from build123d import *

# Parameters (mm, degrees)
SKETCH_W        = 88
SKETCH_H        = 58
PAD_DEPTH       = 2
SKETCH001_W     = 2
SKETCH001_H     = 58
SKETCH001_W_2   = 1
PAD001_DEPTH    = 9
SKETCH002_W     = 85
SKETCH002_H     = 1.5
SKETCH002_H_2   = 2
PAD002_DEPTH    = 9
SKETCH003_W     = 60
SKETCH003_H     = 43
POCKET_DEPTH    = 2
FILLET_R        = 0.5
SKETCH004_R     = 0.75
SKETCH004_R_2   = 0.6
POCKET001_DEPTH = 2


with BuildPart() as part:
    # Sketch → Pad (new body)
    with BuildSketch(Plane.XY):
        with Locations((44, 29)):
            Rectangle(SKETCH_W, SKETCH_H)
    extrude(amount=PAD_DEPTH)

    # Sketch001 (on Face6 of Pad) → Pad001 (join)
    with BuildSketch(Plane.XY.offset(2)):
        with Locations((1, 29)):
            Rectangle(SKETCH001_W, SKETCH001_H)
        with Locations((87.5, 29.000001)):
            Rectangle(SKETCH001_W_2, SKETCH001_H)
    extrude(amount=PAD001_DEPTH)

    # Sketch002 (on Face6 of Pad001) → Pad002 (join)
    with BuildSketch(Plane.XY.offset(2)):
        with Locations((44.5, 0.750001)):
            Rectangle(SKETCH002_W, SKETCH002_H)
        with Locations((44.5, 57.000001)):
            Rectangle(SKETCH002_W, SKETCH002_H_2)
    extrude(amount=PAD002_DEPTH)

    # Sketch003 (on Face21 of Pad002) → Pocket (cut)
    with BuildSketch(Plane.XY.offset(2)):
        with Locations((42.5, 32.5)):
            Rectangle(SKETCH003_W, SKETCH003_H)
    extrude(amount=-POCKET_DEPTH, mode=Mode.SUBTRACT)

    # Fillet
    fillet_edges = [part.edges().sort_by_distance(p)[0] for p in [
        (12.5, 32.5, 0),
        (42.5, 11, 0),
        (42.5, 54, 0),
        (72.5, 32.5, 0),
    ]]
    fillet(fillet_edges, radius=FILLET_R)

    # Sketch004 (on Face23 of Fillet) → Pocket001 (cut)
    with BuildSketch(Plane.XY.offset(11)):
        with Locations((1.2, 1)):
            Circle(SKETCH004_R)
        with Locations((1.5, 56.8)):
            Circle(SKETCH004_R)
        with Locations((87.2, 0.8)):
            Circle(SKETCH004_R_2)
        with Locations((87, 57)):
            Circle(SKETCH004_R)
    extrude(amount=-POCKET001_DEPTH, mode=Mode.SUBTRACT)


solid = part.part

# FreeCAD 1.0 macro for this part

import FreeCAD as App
import Part
import Sketcher

V = App.Vector
Q = App.Units.Quantity


def edges_at(feature, points):
    """Names of the edges that pass closest to the given points."""
    edges = feature.Shape.Edges
    near = lambda p: min(range(len(edges)), key=lambda i: edges[i].distToShape(Part.Vertex(*p))[0])
    return sorted({f"Edge{near(p) + 1}" for p in points})

doc = App.newDocument("Part")
body = doc.addObject("PartDesign::Body", "Body")

# Sketch on XY plane
sketch1 = doc.addObject("Sketcher::SketchObject", "Sketch")
body.addObject(sketch1)
sketch1.AttachmentSupport = (doc.XY_Plane, [""])
sketch1.MapMode = "FlatFace"
sketch1.addGeometry([
    Part.LineSegment(V(0, 58, 0), V(0, 0, 0)),
    Part.LineSegment(V(0, 0, 0), V(88, 0, 0)),
    Part.LineSegment(V(88, 0, 0), V(88, 58, 0)),
    Part.LineSegment(V(88, 58, 0), V(0, 58, 0)),
], False)
sketch1.addConstraint([
    Sketcher.Constraint("Coincident", 0, 2, 1, 1),
    Sketcher.Constraint("Coincident", 1, 2, 2, 1),
    Sketcher.Constraint("Coincident", 2, 2, 3, 1),
    Sketcher.Constraint("Coincident", 3, 2, 0, 1),
    Sketcher.Constraint("Vertical", 0),
    Sketcher.Constraint("Horizontal", 1),
    Sketcher.Constraint("Vertical", 2),
    Sketcher.Constraint("Horizontal", 3),
    Sketcher.Constraint("Coincident", 0, 2, -1, 1),
    Sketcher.Constraint("DistanceX", 1, 1, 1, 2, Q("88 mm")),
    Sketcher.Constraint("DistanceY", 0, 2, 0, 1, Q("58 mm")),
])
pad1 = doc.addObject("PartDesign::Pad", "Pad")
body.addObject(pad1)
pad1.Profile = sketch1
pad1.Length = 2

# Sketch on XY plane
sketch2 = doc.addObject("Sketcher::SketchObject", "Sketch001")
body.addObject(sketch2)
sketch2.AttachmentSupport = (doc.XY_Plane, [""])
sketch2.MapMode = "FlatFace"
sketch2.AttachmentOffset = App.Placement(V(0, 0, 2), App.Rotation())
sketch2.addGeometry([
    Part.LineSegment(V(0, 58, 0), V(0, 0, 0)),  # 0
    Part.LineSegment(V(0, 0, 0), V(2, 0, 0)),  # 1
    Part.LineSegment(V(2, 0, 0), V(2, 58, 0)),  # 2
    Part.LineSegment(V(2, 58, 0), V(0, 58, 0)),  # 3
    Part.LineSegment(V(87, 58.000001, 0), V(87, 0.000001, 0)),  # 4
    Part.LineSegment(V(87, 0.000001, 0), V(88, 0.000001, 0)),  # 5
    Part.LineSegment(V(88, 0.000001, 0), V(88, 58.000001, 0)),  # 6
    Part.LineSegment(V(88, 58.000001, 0), V(87, 58.000001, 0)),  # 7
], False)
sketch2.addConstraint([
    Sketcher.Constraint("Coincident", 0, 2, 1, 1),
    Sketcher.Constraint("Coincident", 1, 2, 2, 1),
    Sketcher.Constraint("Coincident", 2, 2, 3, 1),
    Sketcher.Constraint("Coincident", 3, 2, 0, 1),
    Sketcher.Constraint("Coincident", 4, 2, 5, 1),
    Sketcher.Constraint("Coincident", 5, 2, 6, 1),
    Sketcher.Constraint("Coincident", 6, 2, 7, 1),
    Sketcher.Constraint("Coincident", 7, 2, 4, 1),
    Sketcher.Constraint("Vertical", 0),
    Sketcher.Constraint("Horizontal", 1),
    Sketcher.Constraint("Vertical", 2),
    Sketcher.Constraint("Horizontal", 3),
    Sketcher.Constraint("Vertical", 4),
    Sketcher.Constraint("Horizontal", 5),
    Sketcher.Constraint("Vertical", 6),
    Sketcher.Constraint("Horizontal", 7),
    Sketcher.Constraint("Coincident", 0, 2, -1, 1),
    Sketcher.Constraint("PointOnObject", 4, 2, -1),
    Sketcher.Constraint("Horizontal", 3, 2, 6, 2),
    Sketcher.Constraint("DistanceX", 1, 1, 1, 2, Q("2 mm")),
    Sketcher.Constraint("DistanceX", 5, 1, 5, 2, Q("1 mm")),
    Sketcher.Constraint("DistanceY", 0, 2, 0, 1, Q("58 mm")),
    Sketcher.Constraint("DistanceX", -1, 1, 4, 2, Q("87 mm")),
])
pad2 = doc.addObject("PartDesign::Pad", "Pad001")
body.addObject(pad2)
pad2.Profile = sketch2
pad2.Length = 9

# Sketch on XY plane
sketch3 = doc.addObject("Sketcher::SketchObject", "Sketch002")
body.addObject(sketch3)
sketch3.AttachmentSupport = (doc.XY_Plane, [""])
sketch3.MapMode = "FlatFace"
sketch3.AttachmentOffset = App.Placement(V(0, 0, 2), App.Rotation())
sketch3.addGeometry([
    Part.LineSegment(V(2, 1.500001, 0), V(2, 0.000001, 0)),  # 0
    Part.LineSegment(V(2, 0.000001, 0), V(87, 0.000001, 0)),  # 1
    Part.LineSegment(V(87, 0.000001, 0), V(87, 1.500001, 0)),  # 2
    Part.LineSegment(V(87, 1.500001, 0), V(2, 1.500001, 0)),  # 3
    Part.LineSegment(V(2, 58.000001, 0), V(2, 56.000001, 0)),  # 4
    Part.LineSegment(V(2, 56.000001, 0), V(87, 56.000001, 0)),  # 5
    Part.LineSegment(V(87, 56.000001, 0), V(87, 58.000001, 0)),  # 6
    Part.LineSegment(V(87, 58.000001, 0), V(2, 58.000001, 0)),  # 7
], False)
sketch3.addConstraint([
    Sketcher.Constraint("Coincident", 0, 2, 1, 1),
    Sketcher.Constraint("Coincident", 1, 2, 2, 1),
    Sketcher.Constraint("Coincident", 2, 2, 3, 1),
    Sketcher.Constraint("Coincident", 3, 2, 0, 1),
    Sketcher.Constraint("Coincident", 4, 2, 5, 1),
    Sketcher.Constraint("Coincident", 5, 2, 6, 1),
    Sketcher.Constraint("Coincident", 6, 2, 7, 1),
    Sketcher.Constraint("Coincident", 7, 2, 4, 1),
    Sketcher.Constraint("Vertical", 0),
    Sketcher.Constraint("Horizontal", 1),
    Sketcher.Constraint("Vertical", 2),
    Sketcher.Constraint("Horizontal", 3),
    Sketcher.Constraint("Vertical", 4),
    Sketcher.Constraint("Horizontal", 5),
    Sketcher.Constraint("Vertical", 6),
    Sketcher.Constraint("Horizontal", 7),
    Sketcher.Constraint("PointOnObject", 0, 2, -1),
    Sketcher.Constraint("Vertical", 3, 2, 4, 2),
    Sketcher.Constraint("Vertical", 2, 2, 5, 2),
    Sketcher.Constraint("DistanceX", 1, 1, 1, 2, Q("85 mm")),
    Sketcher.Constraint("DistanceY", 4, 2, 4, 1, Q("2 mm")),
    Sketcher.Constraint("DistanceY", 0, 2, 0, 1, Q("1.5 mm")),
    Sketcher.Constraint("DistanceX", -1, 1, 0, 2, Q("2 mm")),
    Sketcher.Constraint("DistanceY", -1, 1, 4, 2, Q("56.000001 mm")),
])
pad3 = doc.addObject("PartDesign::Pad", "Pad002")
body.addObject(pad3)
pad3.Profile = sketch3
pad3.Length = 9

# Sketch on XY plane
sketch4 = doc.addObject("Sketcher::SketchObject", "Sketch003")
body.addObject(sketch4)
sketch4.AttachmentSupport = (doc.XY_Plane, [""])
sketch4.MapMode = "FlatFace"
sketch4.AttachmentOffset = App.Placement(V(0, 0, 2), App.Rotation())
sketch4.addGeometry([
    Part.LineSegment(V(12.5, 54, 0), V(12.5, 11, 0)),
    Part.LineSegment(V(12.5, 11, 0), V(72.5, 11, 0)),
    Part.LineSegment(V(72.5, 11, 0), V(72.5, 54, 0)),
    Part.LineSegment(V(72.5, 54, 0), V(12.5, 54, 0)),
], False)
sketch4.addConstraint([
    Sketcher.Constraint("Coincident", 0, 2, 1, 1),
    Sketcher.Constraint("Coincident", 1, 2, 2, 1),
    Sketcher.Constraint("Coincident", 2, 2, 3, 1),
    Sketcher.Constraint("Coincident", 3, 2, 0, 1),
    Sketcher.Constraint("Vertical", 0),
    Sketcher.Constraint("Horizontal", 1),
    Sketcher.Constraint("Vertical", 2),
    Sketcher.Constraint("Horizontal", 3),
    Sketcher.Constraint("DistanceX", 1, 1, 1, 2, Q("60 mm")),
    Sketcher.Constraint("DistanceY", 0, 2, 0, 1, Q("43 mm")),
    Sketcher.Constraint("DistanceY", -1, 1, 0, 2, Q("11 mm")),
    Sketcher.Constraint("DistanceX", -1, 1, 0, 2, Q("12.5 mm")),
])
pocket1 = doc.addObject("PartDesign::Pocket", "Pocket")
body.addObject(pocket1)
pocket1.Profile = sketch4
pocket1.Length = 2
doc.recompute()

fillet = doc.addObject("PartDesign::Fillet", "Fillet")
body.addObject(fillet)
fillet.Base = (pocket1, edges_at(pocket1, [
    (12.5, 32.5, 0),
    (42.5, 11, 0),
    (42.5, 54, 0),
    (72.5, 32.5, 0),
]))
fillet.Radius = 0.5

# Sketch on XY plane
sketch5 = doc.addObject("Sketcher::SketchObject", "Sketch004")
body.addObject(sketch5)
sketch5.AttachmentSupport = (doc.XY_Plane, [""])
sketch5.MapMode = "FlatFace"
sketch5.AttachmentOffset = App.Placement(V(0, 0, 11), App.Rotation())
sketch5.addGeometry([
    Part.Circle(V(1.2, 1, 0), V(0, 0, 1), 0.75),
    Part.Circle(V(1.5, 56.8, 0), V(0, 0, 1), 0.75),
    Part.Circle(V(87.2, 0.8, 0), V(0, 0, 1), 0.6),
    Part.Circle(V(87, 57, 0), V(0, 0, 1), 0.75),
], False)
sketch5.addConstraint([
    Sketcher.Constraint("Equal", 0, 1),
    Sketcher.Constraint("Equal", 1, 3),
    Sketcher.Constraint("Diameter", 0, Q("1.5 mm")),
    Sketcher.Constraint("Diameter", 2, Q("1.2 mm")),
    Sketcher.Constraint("DistanceY", -1, 1, 0, 3, Q("1 mm")),
    Sketcher.Constraint("DistanceX", -1, 1, 3, 3, Q("87 mm")),
    Sketcher.Constraint("DistanceY", -1, 1, 3, 3, Q("57 mm")),
    Sketcher.Constraint("DistanceX", 0, 3, 2, 3, Q("86 mm")),
    Sketcher.Constraint("DistanceY", 2, 3, 1, 3, Q("56 mm")),
    Sketcher.Constraint("DistanceX", -1, 1, 0, 3, Q("1.2 mm")),
    Sketcher.Constraint("DistanceX", -1, 1, 1, 3, Q("1.5 mm")),
    Sketcher.Constraint("DistanceY", -1, 1, 1, 3, Q("56.8 mm")),
])
pocket2 = doc.addObject("PartDesign::Pocket", "Pocket001")
body.addObject(pocket2)
pocket2.Profile = sketch5
pocket2.Length = 2

doc.recompute()
